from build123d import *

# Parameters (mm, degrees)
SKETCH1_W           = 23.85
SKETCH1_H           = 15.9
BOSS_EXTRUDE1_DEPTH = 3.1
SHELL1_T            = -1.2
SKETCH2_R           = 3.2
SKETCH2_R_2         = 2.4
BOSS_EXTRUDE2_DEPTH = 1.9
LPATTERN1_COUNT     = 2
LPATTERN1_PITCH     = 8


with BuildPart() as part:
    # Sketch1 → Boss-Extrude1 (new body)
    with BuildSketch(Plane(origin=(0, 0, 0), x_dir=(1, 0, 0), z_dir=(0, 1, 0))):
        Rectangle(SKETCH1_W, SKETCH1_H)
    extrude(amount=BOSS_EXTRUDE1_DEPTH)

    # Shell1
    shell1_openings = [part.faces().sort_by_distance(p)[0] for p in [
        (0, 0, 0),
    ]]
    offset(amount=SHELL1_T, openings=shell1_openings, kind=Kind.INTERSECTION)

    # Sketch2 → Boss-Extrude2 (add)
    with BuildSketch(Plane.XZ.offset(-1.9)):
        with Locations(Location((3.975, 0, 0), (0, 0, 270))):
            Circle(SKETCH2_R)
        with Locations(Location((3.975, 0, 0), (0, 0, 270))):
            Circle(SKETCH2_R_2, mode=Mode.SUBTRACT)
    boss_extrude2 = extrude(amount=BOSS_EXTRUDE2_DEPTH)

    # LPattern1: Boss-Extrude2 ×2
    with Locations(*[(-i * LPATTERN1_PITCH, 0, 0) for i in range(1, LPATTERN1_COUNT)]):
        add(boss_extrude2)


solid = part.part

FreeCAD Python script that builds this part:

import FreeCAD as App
import Part
import Sketcher
from FreeCAD import Vector
Q = App.Units.Quantity


def faces_at(feature, points):
    """Names of the faces that lie closest to the given points."""
    faces = feature.Shape.Faces
    near = lambda p: min(range(len(faces)), key=lambda i: faces[i].distToShape(Part.Vertex(*p))[0])
    return sorted({f"Face{near(p) + 1}" for p in points})


def add_polygon(sketch, points):
    """Adds a closed chain of lines whose ends are joined by coincident constraints."""
    first, n = sketch.GeometryCount, len(points)
    for a, b in zip(points, points[1:] + points[:1]):
        sketch.addGeometry(Part.LineSegment(App.Vector(*a, 0), App.Vector(*b, 0)), False)
    for i in range(n):
        sketch.addConstraint(Sketcher.Constraint("Coincident", first + i, 2, first + (i + 1) % n, 1))

doc = App.newDocument("Part")
body = doc.addObject("PartDesign::Body", "Body")

# Sketch on XZ plane
sketch1 = body.newObject("Sketcher::SketchObject", "Sketch")
sketch1.AttachmentSupport = (doc.getObject("XZ_Plane"), [""])
sketch1.MapMode = "FlatFace"
add_polygon(sketch1, [(-12, -8), (-12, 8), (12, 8), (12, -8)])  # lines 0-3
sketch1.addConstraint([
    Sketcher.Constraint("Vertical", 0),
    Sketcher.Constraint("Horizontal", 1),
    Sketcher.Constraint("Vertical", 2),
    Sketcher.Constraint("Horizontal", 3),
    Sketcher.Constraint("Symmetric", 0, 2, 2, 2, -1, 1),
    Sketcher.Constraint("DistanceY", 0, 1, 0, 2, Q("15.9 mm")),
    Sketcher.Constraint("DistanceX", 1, 1, 1, 2, Q("23.85 mm")),
])
pad1 = body.newObject("PartDesign::Pad", "Pad")
pad1.Profile = sketch1
pad1.Length = 3.1
pad1.Reversed = True
doc.recompute()

thickness = body.newObject("PartDesign::Thickness", "Thickness")
thickness.Base = (pad1, faces_at(pad1, [(0, 0, 0)]))
thickness.Value = 1.2
thickness.Reversed = True
thickness.Join = "Intersection"

# Sketch on XZ plane
sketch2 = body.newObject("Sketcher::SketchObject", "Sketch001")
sketch2.AttachmentSupport = (doc.getObject("XZ_Plane"), [""])
sketch2.MapMode = "FlatFace"
sketch2.AttachmentOffset = App.Placement(Vector(0, 0, -1.9), App.Rotation())
sketch2.addGeometry([
    Part.Circle(Vector(4, 0, 0), Vector(0, 0, 1), 3.2),
    Part.Circle(Vector(4, 0, 0), Vector(0, 0, 1), 2.4),
], False)
sketch2.addConstraint([
    Sketcher.Constraint("Coincident", 1, 3, 0, 3),
    Sketcher.Constraint("PointOnObject", 0, 3, -1),
    Sketcher.Constraint("Diameter", 0, Q("6.4 mm")),
    Sketcher.Constraint("Diameter", 1, Q("4.8 mm")),
    Sketcher.Constraint("DistanceX", -1, 1, 0, 3, Q("3.975 mm")),
])
pad2 = body.newObject("PartDesign::Pad", "Pad001")
pad2.Profile = sketch2
pad2.Length = 1.9
doc.recompute()

linearpattern = body.newObject("PartDesign::LinearPattern", "LinearPattern")
linearpattern.Originals = [pad2]
linearpattern.Direction = (doc.getObject("X_Axis"), [""])
linearpattern.Mode = "offset"
linearpattern.Offset = 8
linearpattern.Occurrences = 2
linearpattern.Reversed = True
body.Tip = linearpattern

doc.recompute()
